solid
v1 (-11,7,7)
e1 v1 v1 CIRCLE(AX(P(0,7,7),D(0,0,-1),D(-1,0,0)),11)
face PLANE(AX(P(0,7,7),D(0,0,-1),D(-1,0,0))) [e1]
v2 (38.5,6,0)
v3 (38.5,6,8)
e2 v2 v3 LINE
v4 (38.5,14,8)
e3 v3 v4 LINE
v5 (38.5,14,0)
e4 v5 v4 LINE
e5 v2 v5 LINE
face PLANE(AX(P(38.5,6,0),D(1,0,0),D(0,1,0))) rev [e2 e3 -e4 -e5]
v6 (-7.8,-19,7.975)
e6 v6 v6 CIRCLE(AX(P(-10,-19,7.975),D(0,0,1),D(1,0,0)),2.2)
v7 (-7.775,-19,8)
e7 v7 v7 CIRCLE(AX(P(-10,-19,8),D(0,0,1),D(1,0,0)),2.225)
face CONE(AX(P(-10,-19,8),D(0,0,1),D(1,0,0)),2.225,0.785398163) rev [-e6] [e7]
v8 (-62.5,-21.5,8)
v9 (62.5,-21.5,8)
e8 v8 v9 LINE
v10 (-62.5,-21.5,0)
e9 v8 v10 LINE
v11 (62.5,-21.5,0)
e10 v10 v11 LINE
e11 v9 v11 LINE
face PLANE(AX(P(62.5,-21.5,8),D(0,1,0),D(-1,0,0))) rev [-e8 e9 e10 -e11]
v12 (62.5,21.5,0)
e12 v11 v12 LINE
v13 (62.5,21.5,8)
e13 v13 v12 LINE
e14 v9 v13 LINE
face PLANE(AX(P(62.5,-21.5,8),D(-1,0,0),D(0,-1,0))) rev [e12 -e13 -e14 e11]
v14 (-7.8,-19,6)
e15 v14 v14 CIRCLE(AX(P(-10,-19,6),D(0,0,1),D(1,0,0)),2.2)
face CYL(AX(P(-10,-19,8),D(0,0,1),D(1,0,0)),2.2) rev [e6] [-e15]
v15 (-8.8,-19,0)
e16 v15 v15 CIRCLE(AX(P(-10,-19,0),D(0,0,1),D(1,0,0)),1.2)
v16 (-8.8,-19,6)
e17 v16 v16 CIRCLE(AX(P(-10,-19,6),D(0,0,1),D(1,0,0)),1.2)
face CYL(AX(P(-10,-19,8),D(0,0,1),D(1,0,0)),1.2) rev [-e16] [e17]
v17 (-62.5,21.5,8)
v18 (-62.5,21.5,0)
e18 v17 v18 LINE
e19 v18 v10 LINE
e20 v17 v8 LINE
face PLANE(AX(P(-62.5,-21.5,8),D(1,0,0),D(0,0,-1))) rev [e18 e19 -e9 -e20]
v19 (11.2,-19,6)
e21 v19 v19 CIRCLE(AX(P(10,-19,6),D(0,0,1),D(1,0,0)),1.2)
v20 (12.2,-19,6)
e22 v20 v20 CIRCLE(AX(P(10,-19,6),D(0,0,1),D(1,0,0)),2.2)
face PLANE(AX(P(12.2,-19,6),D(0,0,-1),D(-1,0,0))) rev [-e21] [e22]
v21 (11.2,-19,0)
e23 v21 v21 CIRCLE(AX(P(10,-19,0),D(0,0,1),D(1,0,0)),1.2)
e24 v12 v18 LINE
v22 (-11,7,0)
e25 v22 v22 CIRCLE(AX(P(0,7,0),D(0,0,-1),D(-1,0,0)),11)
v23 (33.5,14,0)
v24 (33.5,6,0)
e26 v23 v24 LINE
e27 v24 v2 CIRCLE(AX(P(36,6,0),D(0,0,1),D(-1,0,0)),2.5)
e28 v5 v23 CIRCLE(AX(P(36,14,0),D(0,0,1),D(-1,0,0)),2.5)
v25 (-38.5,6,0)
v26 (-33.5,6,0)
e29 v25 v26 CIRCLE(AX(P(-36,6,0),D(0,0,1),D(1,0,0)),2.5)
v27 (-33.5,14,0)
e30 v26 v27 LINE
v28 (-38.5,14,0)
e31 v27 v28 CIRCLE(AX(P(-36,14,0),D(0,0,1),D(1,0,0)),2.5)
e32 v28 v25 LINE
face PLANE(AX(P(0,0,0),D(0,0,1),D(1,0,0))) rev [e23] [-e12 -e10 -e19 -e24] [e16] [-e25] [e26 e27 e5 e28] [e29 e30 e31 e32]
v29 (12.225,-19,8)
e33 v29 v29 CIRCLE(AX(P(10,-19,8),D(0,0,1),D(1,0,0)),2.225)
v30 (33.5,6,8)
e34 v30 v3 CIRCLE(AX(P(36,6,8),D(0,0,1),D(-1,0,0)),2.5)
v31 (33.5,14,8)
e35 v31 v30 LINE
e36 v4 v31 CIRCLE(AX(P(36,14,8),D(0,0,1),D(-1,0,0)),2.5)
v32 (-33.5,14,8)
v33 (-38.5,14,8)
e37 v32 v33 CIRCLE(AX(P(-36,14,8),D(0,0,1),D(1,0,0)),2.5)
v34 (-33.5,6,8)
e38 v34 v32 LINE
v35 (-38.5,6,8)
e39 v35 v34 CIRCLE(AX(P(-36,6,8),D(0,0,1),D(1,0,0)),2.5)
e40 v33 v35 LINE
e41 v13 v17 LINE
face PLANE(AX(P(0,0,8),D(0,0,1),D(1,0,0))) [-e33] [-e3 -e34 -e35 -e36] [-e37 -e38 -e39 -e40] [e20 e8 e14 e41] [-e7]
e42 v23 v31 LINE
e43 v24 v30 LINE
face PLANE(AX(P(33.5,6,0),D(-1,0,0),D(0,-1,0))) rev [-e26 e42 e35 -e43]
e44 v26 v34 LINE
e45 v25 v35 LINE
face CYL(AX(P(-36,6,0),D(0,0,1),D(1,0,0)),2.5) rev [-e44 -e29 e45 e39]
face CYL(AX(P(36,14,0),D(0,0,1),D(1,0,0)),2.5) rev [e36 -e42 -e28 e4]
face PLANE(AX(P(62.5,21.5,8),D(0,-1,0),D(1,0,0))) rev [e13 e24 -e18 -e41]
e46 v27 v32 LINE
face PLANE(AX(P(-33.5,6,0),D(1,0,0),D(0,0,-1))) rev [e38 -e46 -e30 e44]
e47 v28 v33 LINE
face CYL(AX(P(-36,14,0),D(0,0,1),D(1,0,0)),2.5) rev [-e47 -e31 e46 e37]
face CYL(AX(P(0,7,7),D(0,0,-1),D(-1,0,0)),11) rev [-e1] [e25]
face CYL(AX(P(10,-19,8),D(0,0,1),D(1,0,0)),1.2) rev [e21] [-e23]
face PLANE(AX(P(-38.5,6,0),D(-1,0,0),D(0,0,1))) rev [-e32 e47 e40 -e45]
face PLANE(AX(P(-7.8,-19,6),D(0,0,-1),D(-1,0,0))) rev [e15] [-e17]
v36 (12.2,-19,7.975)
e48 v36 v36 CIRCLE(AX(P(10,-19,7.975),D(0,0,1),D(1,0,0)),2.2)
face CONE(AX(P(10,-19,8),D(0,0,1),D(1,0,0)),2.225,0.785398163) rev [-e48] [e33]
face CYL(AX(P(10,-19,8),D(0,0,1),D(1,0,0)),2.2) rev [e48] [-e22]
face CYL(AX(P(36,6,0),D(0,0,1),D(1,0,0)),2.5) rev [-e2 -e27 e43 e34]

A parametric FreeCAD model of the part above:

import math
import FreeCAD as App
import Part
import Sketcher

V = App.Vector
Q = App.Units.Quantity

doc = App.newDocument("Part")
body = doc.addObject("PartDesign::Body", "Body")

sketch1 = doc.addObject("Sketcher::SketchObject", "Sketch")
body.addObject(sketch1)
sketch1.AttachmentSupport = (doc.XY_Plane, [""])
sketch1.MapMode = "FlatFace"
sketch1.addGeometry([
    Part.LineSegment(V(-62, 22, 0), V(-62, -22, 0)),
    Part.LineSegment(V(-62, -22, 0), V(62, -22, 0)),
    Part.LineSegment(V(62, -22, 0), V(62, 22, 0)),
    Part.LineSegment(V(62, 22, 0), V(-62, 22, 0)),
], False)
sketch1.addConstraint([
    Sketcher.Constraint("Coincident", 0, 2, 1, 1),
    Sketcher.Constraint("Coincident", 1, 2, 2, 1),
    Sketcher.Constraint("Coincident", 2, 2, 3, 1),
    Sketcher.Constraint("Coincident", 3, 2, 0, 1),
    Sketcher.Constraint("Vertical", 0),
    Sketcher.Constraint("Horizontal", 1),
    Sketcher.Constraint("Vertical", 2),
    Sketcher.Constraint("Horizontal", 3),
    Sketcher.Constraint("Symmetric", 0, 2, 2, 2, -1, 1),
    Sketcher.Constraint("DistanceX", 1, 1, 1, 2, Q("125 mm")),
    Sketcher.Constraint("DistanceY", 0, 2, 0, 1, Q("43 mm")),
])
pad1 = doc.addObject("PartDesign::Pad", "Pad")
body.addObject(pad1)
pad1.Profile = sketch1
pad1.Length = 8

sketch2 = doc.addObject("Sketcher::SketchObject", "Sketch001")
body.addObject(sketch2)
sketch2.AttachmentSupport = (doc.XY_Plane, [""])
sketch2.MapMode = "FlatFace"
sketch2.AttachmentOffset = App.Placement(V(0, 0, 8), App.Rotation())
sketch2.addGeometry([
    Part.LineSegment(V(-33.5, 6, 0), V(-33.5, 14, 0)),
    Part.ArcOfCircle(Part.Circle(V(-36, 14, 0), V(0, 0, 1), 2.5), math.radians(0), math.radians(180)),
    Part.LineSegment(V(-38.5, 14, 0), V(-38.5, 6, 0)),
    Part.ArcOfCircle(Part.Circle(V(-36, 6, 0), V(0, 0, 1), 2.5), math.radians(180), math.radians(360)),
    Part.LineSegment(V(38.5, 6, 0), V(38.5, 14, 0)),
    Part.ArcOfCircle(Part.Circle(V(36, 14, 0), V(0, 0, 1), 2.5), math.radians(0), math.radians(180)),
    Part.LineSegment(V(33.5, 14, 0), V(33.5, 6, 0)),
    Part.ArcOfCircle(Part.Circle(V(36, 6, 0), V(0, 0, 1), 2.5), math.radians(180), math.radians(360)),
], False)
sketch2.addConstraint([
    Sketcher.Constraint("Tangent", 0, 2, 1, 1),
    Sketcher.Constraint("Tangent", 1, 2, 2, 1),
    Sketcher.Constraint("Tangent", 2, 2, 3, 1),
    Sketcher.Constraint("Tangent", 3, 2, 0, 1),
    Sketcher.Constraint("Tangent", 4, 2, 5, 1),
    Sketcher.Constraint("Tangent", 5, 2, 6, 1),
    Sketcher.Constraint("Tangent", 6, 2, 7, 1),
    Sketcher.Constraint("Tangent", 7, 2, 4, 1),
    Sketcher.Constraint("Vertical", 0),
    Sketcher.Constraint("Vertical", 2),
    Sketcher.Constraint("Vertical", 4),
    Sketcher.Constraint("Vertical", 6),
    Sketcher.Constraint("Equal", 3, 5),
    Sketcher.Constraint("Symmetric", 1, 3, 5, 3, -2),
    Sketcher.Constraint("Horizontal", 3, 3, 7, 3),
    Sketcher.Constraint("Radius", 1, Q("2.5 mm")),
    Sketcher.Constraint("DistanceY", 0, 1, 0, 2, Q("8 mm")),
    Sketcher.Constraint("DistanceX", 1, 3, -1, 1, Q("36 mm")),
    Sketcher.Constraint("DistanceY", -1, 1, 1, 3, Q("14 mm")),
])
pocket1 = doc.addObject("PartDesign::Pocket", "Pocket")
body.addObject(pocket1)
pocket1.Profile = sketch2
pocket1.Type = "ThroughAll"

sketch3 = doc.addObject("Sketcher::SketchObject", "Sketch002")
body.addObject(sketch3)
sketch3.AttachmentSupport = (doc.YZ_Plane, [""])
sketch3.MapMode = "FlatFace"
sketch3.AttachmentOffset = App.Placement(V(0, 0, -10), App.Rotation())
sketch3.addGeometry([
    Part.LineSegment(V(-19, 0, 0), V(-19, 8, 0)),
    Part.LineSegment(V(-19, 8, 0), V(-21.225, 8, 0)),
    Part.LineSegment(V(-21.225, 8, 0), V(-21.2, 7.975, 0)),
    Part.LineSegment(V(-21.2, 7.975, 0), V(-21.2, 6, 0)),
    Part.LineSegment(V(-21.2, 6, 0), V(-20.2, 6, 0)),
    Part.LineSegment(V(-20.2, 6, 0), V(-20.2, 0, 0)),
    Part.LineSegment(V(-20.2, 0, 0), V(-19, 0, 0)),
], False)
sketch3.addGeometry(Part.LineSegment(V(-19, 8, 0), V(-19, 0, 0)), True)
sketch3.addConstraint([
    Sketcher.Constraint("Coincident", 0, 2, 1, 1),
    Sketcher.Constraint("Coincident", 1, 2, 2, 1),
    Sketcher.Constraint("Coincident", 2, 2, 3, 1),
    Sketcher.Constraint("Coincident", 3, 2, 4, 1),
    Sketcher.Constraint("Coincident", 4, 2, 5, 1),
    Sketcher.Constraint("Coincident", 5, 2, 6, 1),
    Sketcher.Constraint("Coincident", 6, 2, 0, 1),
    Sketcher.Constraint("Vertical", 0),
    Sketcher.Constraint("Horizontal", 1),
    Sketcher.Constraint("Vertical", 3),
    Sketcher.Constraint("Horizontal", 4),
    Sketcher.Constraint("Vertical", 5),
    Sketcher.Constraint("Horizontal", 6),
    Sketcher.Constraint("Vertical", 7),
    Sketcher.Constraint("Coincident", 7, 1, 0, 2),
    Sketcher.Constraint("PointOnObject", 5, 2, -1),
    Sketcher.Constraint("PointOnObject", 7, 2, -1),
    Sketcher.Constraint("DistanceX", 4, 1, 4, 2, Q("1 mm")),
    Sketcher.Constraint("DistanceY", 0, 1, 0, 2, Q("8 mm")),
    Sketcher.Constraint("DistanceY", 5, 2, 5, 1, Q("6 mm")),
    Sketcher.Constraint("Angle", 2, Q("-45 deg")),
    Sketcher.Constraint("DistanceX", 6, 1, 6, 2, Q("1.2 mm")),
    Sketcher.Constraint("DistanceX", 0, 2, -1, 1, Q("19 mm")),
    Sketcher.Constraint("DistanceX", 1, 2, 1, 1, Q("2.225 mm")),
])
groove = doc.addObject("PartDesign::Groove", "Groove")
body.addObject(groove)
groove.Profile = sketch3
groove.ReferenceAxis = (sketch3, ["Axis0"])
groove.Angle = 360
doc.recompute()

linearpattern = doc.addObject("PartDesign::LinearPattern", "LinearPattern")
body.addObject(linearpattern)
linearpattern.Originals = [groove]
linearpattern.Direction = (doc.X_Axis, [""])
linearpattern.Mode = "offset"
linearpattern.Offset = 20
linearpattern.Occurrences = 2
body.Tip = linearpattern

sketch4 = doc.addObject("Sketcher::SketchObject", "Sketch003")
body.addObject(sketch4)
sketch4.AttachmentSupport = (doc.XY_Plane, [""])
sketch4.MapMode = "FlatFace"
sketch4.addGeometry(Part.Circle(V(0, 7, 0), V(0, 0, 1), 11), False)
sketch4.addConstraint([
    Sketcher.Constraint("PointOnObject", 0, 3, -2),
    Sketcher.Constraint("Diameter", 0, Q("22 mm")),
    Sketcher.Constraint("DistanceY", -1, 1, 0, 3, Q("7 mm")),
])
pocket2 = doc.addObject("PartDesign::Pocket", "Pocket001")
body.addObject(pocket2)
pocket2.Profile = sketch4
pocket2.Length = 7
pocket2.Reversed = True

doc.recompute()
